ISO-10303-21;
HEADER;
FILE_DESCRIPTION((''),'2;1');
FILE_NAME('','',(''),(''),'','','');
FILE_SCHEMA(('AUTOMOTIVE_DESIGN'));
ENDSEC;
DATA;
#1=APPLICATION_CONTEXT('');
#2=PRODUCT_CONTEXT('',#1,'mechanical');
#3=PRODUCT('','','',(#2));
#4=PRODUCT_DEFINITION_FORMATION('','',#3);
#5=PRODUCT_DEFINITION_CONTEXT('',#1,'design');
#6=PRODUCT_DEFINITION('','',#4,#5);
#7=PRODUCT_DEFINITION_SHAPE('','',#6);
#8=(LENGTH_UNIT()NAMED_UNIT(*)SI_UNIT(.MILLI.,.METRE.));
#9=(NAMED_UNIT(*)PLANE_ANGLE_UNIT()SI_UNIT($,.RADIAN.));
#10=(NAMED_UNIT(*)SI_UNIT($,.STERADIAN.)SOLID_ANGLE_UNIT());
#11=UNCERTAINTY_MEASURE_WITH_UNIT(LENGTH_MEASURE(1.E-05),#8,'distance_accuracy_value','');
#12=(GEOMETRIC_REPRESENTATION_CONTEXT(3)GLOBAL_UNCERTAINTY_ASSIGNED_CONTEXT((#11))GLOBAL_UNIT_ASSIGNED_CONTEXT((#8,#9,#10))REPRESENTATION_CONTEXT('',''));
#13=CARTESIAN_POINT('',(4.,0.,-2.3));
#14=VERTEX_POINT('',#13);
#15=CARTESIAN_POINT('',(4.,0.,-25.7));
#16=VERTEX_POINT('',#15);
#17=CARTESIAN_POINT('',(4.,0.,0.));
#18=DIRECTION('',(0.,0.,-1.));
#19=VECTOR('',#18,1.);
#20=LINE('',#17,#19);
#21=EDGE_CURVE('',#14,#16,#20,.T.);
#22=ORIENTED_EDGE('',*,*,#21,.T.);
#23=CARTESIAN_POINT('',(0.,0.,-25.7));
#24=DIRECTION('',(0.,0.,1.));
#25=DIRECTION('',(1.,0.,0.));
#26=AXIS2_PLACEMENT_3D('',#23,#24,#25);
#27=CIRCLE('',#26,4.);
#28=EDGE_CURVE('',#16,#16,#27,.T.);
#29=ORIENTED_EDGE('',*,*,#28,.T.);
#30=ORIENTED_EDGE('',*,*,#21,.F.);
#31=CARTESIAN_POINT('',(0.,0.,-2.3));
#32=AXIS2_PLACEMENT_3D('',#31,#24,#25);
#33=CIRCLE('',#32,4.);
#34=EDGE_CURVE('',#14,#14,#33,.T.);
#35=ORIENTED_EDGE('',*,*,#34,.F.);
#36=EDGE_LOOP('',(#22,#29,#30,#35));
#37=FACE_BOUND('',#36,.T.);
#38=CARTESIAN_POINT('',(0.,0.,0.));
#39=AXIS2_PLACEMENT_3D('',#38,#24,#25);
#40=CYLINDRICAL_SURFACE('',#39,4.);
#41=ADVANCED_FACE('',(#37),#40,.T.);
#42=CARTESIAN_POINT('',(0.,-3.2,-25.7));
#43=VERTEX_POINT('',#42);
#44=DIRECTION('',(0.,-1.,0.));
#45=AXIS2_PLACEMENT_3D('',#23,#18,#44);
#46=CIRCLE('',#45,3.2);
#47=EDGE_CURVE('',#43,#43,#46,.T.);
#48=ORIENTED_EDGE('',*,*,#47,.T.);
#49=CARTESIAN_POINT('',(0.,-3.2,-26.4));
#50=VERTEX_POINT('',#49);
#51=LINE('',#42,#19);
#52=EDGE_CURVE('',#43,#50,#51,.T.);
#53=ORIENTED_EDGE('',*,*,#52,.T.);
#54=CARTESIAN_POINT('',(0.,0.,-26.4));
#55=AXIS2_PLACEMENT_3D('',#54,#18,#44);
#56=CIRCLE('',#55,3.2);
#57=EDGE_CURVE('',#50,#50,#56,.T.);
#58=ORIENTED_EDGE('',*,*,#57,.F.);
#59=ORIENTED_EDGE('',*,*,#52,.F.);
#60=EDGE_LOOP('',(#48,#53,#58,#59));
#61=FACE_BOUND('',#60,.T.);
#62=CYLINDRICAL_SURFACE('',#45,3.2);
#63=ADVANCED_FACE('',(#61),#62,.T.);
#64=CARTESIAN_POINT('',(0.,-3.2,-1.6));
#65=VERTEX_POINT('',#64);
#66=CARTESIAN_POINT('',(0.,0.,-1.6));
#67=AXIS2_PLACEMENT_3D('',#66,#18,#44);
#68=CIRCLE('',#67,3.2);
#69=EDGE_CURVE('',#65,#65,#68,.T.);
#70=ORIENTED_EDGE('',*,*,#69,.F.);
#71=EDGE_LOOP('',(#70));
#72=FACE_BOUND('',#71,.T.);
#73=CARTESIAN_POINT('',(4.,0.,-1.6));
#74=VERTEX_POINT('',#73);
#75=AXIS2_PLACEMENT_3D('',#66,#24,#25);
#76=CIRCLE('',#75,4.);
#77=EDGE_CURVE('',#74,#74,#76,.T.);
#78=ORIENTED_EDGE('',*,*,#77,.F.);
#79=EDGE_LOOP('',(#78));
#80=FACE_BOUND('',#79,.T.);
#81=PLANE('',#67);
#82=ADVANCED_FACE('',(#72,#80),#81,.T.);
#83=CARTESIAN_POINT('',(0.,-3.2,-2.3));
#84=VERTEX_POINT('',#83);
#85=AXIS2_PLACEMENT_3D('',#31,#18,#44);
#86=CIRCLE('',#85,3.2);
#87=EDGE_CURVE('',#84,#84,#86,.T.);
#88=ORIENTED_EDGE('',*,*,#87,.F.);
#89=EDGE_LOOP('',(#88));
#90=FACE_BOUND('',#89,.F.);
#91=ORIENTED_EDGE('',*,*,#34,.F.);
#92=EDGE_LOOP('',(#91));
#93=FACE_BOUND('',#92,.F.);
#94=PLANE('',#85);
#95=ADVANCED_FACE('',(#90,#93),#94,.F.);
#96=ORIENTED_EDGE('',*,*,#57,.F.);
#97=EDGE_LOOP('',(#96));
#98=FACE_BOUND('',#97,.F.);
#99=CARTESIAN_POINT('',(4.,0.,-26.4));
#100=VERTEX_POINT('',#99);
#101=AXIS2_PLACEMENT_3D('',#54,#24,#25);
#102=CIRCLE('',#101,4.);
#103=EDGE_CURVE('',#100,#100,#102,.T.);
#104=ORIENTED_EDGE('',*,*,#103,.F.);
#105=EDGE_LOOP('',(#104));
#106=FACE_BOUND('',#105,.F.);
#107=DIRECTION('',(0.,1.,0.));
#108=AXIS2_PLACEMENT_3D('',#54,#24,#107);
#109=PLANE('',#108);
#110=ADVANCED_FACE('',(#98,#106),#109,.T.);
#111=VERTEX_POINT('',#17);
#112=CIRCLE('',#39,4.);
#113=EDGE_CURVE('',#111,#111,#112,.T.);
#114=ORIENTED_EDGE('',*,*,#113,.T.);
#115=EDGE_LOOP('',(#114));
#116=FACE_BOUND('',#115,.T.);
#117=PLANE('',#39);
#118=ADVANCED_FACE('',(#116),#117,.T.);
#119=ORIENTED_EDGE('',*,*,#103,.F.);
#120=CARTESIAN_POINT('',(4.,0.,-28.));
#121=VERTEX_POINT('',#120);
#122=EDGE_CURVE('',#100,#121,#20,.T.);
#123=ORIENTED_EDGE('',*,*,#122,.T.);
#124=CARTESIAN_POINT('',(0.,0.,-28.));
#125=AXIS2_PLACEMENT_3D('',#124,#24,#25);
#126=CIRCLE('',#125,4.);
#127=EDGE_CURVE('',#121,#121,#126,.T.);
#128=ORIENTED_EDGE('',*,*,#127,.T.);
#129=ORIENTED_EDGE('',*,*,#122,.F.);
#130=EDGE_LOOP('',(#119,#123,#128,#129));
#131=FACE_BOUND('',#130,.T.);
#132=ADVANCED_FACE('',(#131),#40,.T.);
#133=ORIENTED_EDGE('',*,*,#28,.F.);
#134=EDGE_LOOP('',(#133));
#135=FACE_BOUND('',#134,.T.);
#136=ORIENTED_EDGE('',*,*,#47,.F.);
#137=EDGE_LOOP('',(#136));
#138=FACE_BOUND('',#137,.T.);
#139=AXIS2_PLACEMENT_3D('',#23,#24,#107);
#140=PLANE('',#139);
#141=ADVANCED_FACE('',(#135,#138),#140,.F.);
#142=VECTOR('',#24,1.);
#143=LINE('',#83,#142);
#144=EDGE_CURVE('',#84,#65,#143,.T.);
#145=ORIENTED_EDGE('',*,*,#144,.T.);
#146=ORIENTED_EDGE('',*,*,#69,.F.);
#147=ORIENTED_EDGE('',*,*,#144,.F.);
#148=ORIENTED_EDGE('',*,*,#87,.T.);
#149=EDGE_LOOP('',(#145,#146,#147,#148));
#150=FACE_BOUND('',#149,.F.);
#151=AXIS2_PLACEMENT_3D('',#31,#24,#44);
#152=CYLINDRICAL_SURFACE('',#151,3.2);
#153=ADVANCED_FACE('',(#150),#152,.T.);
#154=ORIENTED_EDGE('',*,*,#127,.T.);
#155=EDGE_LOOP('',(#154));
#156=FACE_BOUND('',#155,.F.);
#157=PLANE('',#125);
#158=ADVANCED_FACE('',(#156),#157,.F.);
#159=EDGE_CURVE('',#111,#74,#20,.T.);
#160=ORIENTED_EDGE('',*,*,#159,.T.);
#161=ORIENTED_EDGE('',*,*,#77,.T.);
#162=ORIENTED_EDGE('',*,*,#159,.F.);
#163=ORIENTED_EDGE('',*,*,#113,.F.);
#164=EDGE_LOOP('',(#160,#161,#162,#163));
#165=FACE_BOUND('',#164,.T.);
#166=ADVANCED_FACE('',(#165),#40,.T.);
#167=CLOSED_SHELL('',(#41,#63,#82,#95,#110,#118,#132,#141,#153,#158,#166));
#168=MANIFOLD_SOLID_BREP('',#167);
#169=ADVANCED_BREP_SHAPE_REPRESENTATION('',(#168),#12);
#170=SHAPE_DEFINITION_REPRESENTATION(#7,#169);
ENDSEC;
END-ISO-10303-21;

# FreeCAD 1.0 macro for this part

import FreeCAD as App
import Part
import Sketcher

V = App.Vector

doc = App.newDocument("Part")
params = doc.addObject("Spreadsheet::Sheet", "Params")
for row, (alias, value) in enumerate([
    ("sketch1_diameter", "8 mm"),
    ("pad1_length", "28 mm"),
    ("sketch2_width", "0.8 mm"),
    ("sketch2_height", "0.7 mm"),
    ("groove_angle", "360 deg"),
], start=1):
    params.set(f"A{row}", alias)
    params.set(f"B{row}", "=" + value)
    params.setAlias(f"B{row}", alias)

body = doc.addObject("PartDesign::Body", "Body")

# Sketch on XY plane
sketch1 = doc.addObject("Sketcher::SketchObject", "Sketch")
body.addObject(sketch1)
sketch1.AttachmentSupport = (doc.XY_Plane, [""])
sketch1.MapMode = "FlatFace"
sketch1.addGeometry(Part.Circle(V(0, 0, 0), V(0, 0, 1), 4), False)
sketch1.addConstraint([
    Sketcher.Constraint("Coincident", 0, 3, -1, 1),
    Sketcher.Constraint("Diameter", 0, 8.0),
])
sketch1.setExpression("Constraints[1]", "Params.sketch1_diameter")
pad1 = doc.addObject("PartDesign::Pad", "Pad")
body.addObject(pad1)
pad1.Profile = sketch1
pad1.setExpression("Length", "Params.pad1_length")
pad1.Reversed = True

# Sketch on YZ plane
sketch2 = doc.addObject("Sketcher::SketchObject", "Sketch001")
body.addObject(sketch2)
sketch2.AttachmentSupport = (doc.YZ_Plane, [""])
sketch2.MapMode = "FlatFace"
sketch2.addGeometry([
    Part.LineSegment(V(-3.2, -1.6, 0), V(-4, -1.6, 0)),
    Part.LineSegment(V(-4, -1.6, 0), V(-4, -2.3, 0)),
    Part.LineSegment(V(-4, -2.3, 0), V(-3.2, -2.3, 0)),
    Part.LineSegment(V(-3.2, -2.3, 0), V(-3.2, -1.6, 0)),
], False)
sketch2.addConstraint([
    Sketcher.Constraint("Coincident", 0, 2, 1, 1),
    Sketcher.Constraint("Coincident", 1, 2, 2, 1),
    Sketcher.Constraint("Coincident", 2, 2, 3, 1),
    Sketcher.Constraint("Coincident", 3, 2, 0, 1),
    Sketcher.Constraint("Horizontal", 0),
    Sketcher.Constraint("Vertical", 1),
    Sketcher.Constraint("Horizontal", 2),
    Sketcher.Constraint("Vertical", 3),
    Sketcher.Constraint("DistanceX", 0, 2, 0, 1, 0.8),
    Sketcher.Constraint("DistanceY", 1, 2, 1, 1, 0.7),
    Sketcher.Constraint("DistanceY", 0, 2, -1, 1, 1.6),
    Sketcher.Constraint("DistanceX", 0, 2, -1, 1, 4.0),
])
sketch2.setExpression("Constraints[8]", "Params.sketch2_width")
sketch2.setExpression("Constraints[9]", "Params.sketch2_height")
groove = doc.addObject("PartDesign::Groove", "Groove")
body.addObject(groove)
groove.Profile = sketch2
groove.ReferenceAxis = (sketch2, ["V_Axis"])
groove.setExpression("Angle", "Params.groove_angle")
doc.recompute()

datumplane = doc.addObject("PartDesign::Plane", "DatumPlane")
body.addObject(datumplane)
datumplane.AttachmentSupport = (doc.XY_Plane, [""])
datumplane.MapMode = "FlatFace"
datumplane.AttachmentOffset = App.Placement(V(0, 0, -14), App.Rotation())
mirrored = doc.addObject("PartDesign::Mirrored", "Mirrored")
body.addObject(mirrored)
mirrored.Originals = [groove]
mirrored.MirrorPlane = (datumplane, [""])
body.Tip = mirrored

doc.recompute()
